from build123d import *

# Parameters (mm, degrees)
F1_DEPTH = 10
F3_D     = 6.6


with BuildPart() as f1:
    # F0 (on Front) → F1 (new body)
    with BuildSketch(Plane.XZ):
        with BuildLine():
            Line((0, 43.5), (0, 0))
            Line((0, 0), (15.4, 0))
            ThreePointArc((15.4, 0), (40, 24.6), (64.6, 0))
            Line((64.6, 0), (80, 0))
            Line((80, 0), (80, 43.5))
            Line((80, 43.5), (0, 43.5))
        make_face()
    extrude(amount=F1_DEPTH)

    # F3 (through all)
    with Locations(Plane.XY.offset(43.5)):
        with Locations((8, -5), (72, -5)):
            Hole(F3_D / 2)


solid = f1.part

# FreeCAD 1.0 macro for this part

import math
import FreeCAD as App
import Part
import Sketcher

V = App.Vector

doc = App.newDocument("Part")
params = doc.addObject("Spreadsheet::Sheet", "Params")
for row, (alias, value) in enumerate([
    ("sketch1_radius", "24.6 mm"),
    ("sketch1_width", "80 mm"),
    ("sketch1_height", "43.5 mm"),
    ("pad1_length", "10 mm"),
    ("sketch2_diameter", "6.6 mm"),
    ("hole_diameter", "6.6 mm"),
], start=1):
    params.set(f"A{row}", alias)
    params.set(f"B{row}", "=" + value)
    params.setAlias(f"B{row}", alias)

body = doc.addObject("PartDesign::Body", "Body")

# Sketch on XZ plane
sketch1 = doc.addObject("Sketcher::SketchObject", "Sketch")
body.addObject(sketch1)
sketch1.AttachmentSupport = (doc.XZ_Plane, [""])
sketch1.MapMode = "FlatFace"
sketch1.addGeometry([
    Part.LineSegment(V(0, 44, 0), V(0, 0, 0)),  # 0
    Part.LineSegment(V(0, 0, 0), V(15, 0, 0)),  # 1
    Part.ArcOfCircle(Part.Circle(V(40, 0, 0), V(0, 0, 1), 25), math.radians(0), math.radians(180)),  # 2
    Part.LineSegment(V(65, 0, 0), V(80, 0, 0)),  # 3
    Part.LineSegment(V(80, 0, 0), V(80, 44, 0)),  # 4
    Part.LineSegment(V(80, 44, 0), V(0, 44, 0)),  # 5
], False)
sketch1.addConstraint([
    Sketcher.Constraint("Coincident", 0, 2, 1, 1),
    Sketcher.Constraint("Coincident", 1, 2, 2, 2),
    Sketcher.Constraint("Coincident", 2, 1, 3, 1),
    Sketcher.Constraint("Coincident", 3, 2, 4, 1),
    Sketcher.Constraint("Coincident", 4, 2, 5, 1),
    Sketcher.Constraint("Coincident", 5, 2, 0, 1),
    Sketcher.Constraint("Vertical", 0),
    Sketcher.Constraint("Horizontal", 1),
    Sketcher.Constraint("Horizontal", 3),
    Sketcher.Constraint("Vertical", 4),
    Sketcher.Constraint("Horizontal", 5),
    Sketcher.Constraint("Coincident", 0, 2, -1, 1),
    Sketcher.Constraint("PointOnObject", 2, 3, -1),
    Sketcher.Constraint("PointOnObject", 2, 1, -1),
    Sketcher.Constraint("Equal", 1, 3),
    Sketcher.Constraint("Radius", 2, 24.6),
    Sketcher.Constraint("DistanceX", 5, 2, 5, 1, 80.0),
    Sketcher.Constraint("DistanceY", 0, 2, 0, 1, 43.5),
])
sketch1.setExpression("Constraints[15]", "Params.sketch1_radius")
sketch1.setExpression("Constraints[16]", "Params.sketch1_width")
sketch1.setExpression("Constraints[17]", "Params.sketch1_height")
pad1 = doc.addObject("PartDesign::Pad", "Pad")
body.addObject(pad1)
pad1.Profile = sketch1
pad1.setExpression("Length", "Params.pad1_length")

# Sketch on XY plane
sketch2 = doc.addObject("Sketcher::SketchObject", "Sketch001")
body.addObject(sketch2)
sketch2.AttachmentSupport = (doc.XY_Plane, [""])
sketch2.MapMode = "FlatFace"
sketch2.AttachmentOffset = App.Placement(V(0, 0, 43.5), App.Rotation())
sketch2.addGeometry([
    Part.Circle(V(8, -5, 0), V(0, 0, 1), 3.3),
    Part.Circle(V(72, -5, 0), V(0, 0, 1), 3.3),
], False)
sketch2.addConstraint([
    Sketcher.Constraint("Equal", 0, 1),
    Sketcher.Constraint("Horizontal", 0, 3, 1, 3),
    Sketcher.Constraint("Diameter", 0, 6.6),
    Sketcher.Constraint("DistanceX", -1, 1, 0, 3, 8.0),
    Sketcher.Constraint("DistanceY", 0, 3, -1, 1, 5.0),
    Sketcher.Constraint("DistanceX", -1, 1, 1, 3, 72.0),
])
sketch2.setExpression("Constraints[2]", "Params.sketch2_diameter")
doc.recompute()
hole = doc.addObject("PartDesign::Hole", "Hole")
body.addObject(hole)
hole.Profile = sketch2
hole.ThreadType = "None"
hole.setExpression("Diameter", "Params.hole_diameter")
hole.DepthType = "ThroughAll"

doc.recompute()
